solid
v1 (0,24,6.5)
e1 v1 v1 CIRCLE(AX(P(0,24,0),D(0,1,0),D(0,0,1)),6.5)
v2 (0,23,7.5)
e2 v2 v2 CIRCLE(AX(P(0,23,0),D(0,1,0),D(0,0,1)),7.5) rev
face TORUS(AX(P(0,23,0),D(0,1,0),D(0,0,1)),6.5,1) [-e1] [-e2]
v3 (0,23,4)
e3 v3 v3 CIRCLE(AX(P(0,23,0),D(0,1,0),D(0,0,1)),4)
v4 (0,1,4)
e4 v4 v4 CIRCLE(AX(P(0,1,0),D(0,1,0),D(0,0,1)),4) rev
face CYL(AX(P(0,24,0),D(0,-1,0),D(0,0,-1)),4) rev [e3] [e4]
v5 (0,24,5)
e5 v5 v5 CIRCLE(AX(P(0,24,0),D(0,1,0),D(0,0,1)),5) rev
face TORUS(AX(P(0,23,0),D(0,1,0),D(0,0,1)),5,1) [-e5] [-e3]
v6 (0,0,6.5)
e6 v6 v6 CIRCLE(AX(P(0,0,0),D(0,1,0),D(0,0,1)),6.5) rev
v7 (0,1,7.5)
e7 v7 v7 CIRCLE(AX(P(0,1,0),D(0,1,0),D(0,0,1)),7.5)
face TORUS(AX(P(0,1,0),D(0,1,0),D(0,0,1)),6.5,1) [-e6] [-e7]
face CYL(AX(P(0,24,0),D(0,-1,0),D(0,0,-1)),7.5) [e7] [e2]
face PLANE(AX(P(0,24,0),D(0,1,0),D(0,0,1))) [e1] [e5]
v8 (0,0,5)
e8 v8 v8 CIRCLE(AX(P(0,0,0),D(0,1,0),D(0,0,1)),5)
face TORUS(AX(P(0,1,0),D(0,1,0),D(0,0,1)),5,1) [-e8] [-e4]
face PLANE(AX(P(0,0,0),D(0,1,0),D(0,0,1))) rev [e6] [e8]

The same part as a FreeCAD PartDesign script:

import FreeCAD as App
import Part
import Sketcher
Q = App.Units.Quantity


def edges_at(feature, points):
    """Names of the edges that pass closest to the given points."""
    edges = feature.Shape.Edges
    near = lambda p: min(range(len(edges)), key=lambda i: edges[i].distToShape(Part.Vertex(*p))[0])
    return sorted({f"Edge{near(p) + 1}" for p in points})

doc = App.newDocument("Part")
body = doc.addObject("PartDesign::Body", "Body")

sketch1 = body.newObject("Sketcher::SketchObject", "Sketch")
sketch1.AttachmentSupport = (doc.getObject("XZ_Plane"), [""])
sketch1.MapMode = "FlatFace"
sketch1.addGeometry(Part.Circle(App.Vector(0, 0, 0), App.Vector(0, 0, 1), 7.5), False)
sketch1.addGeometry(Part.Circle(App.Vector(0, 0, 0), App.Vector(0, 0, 1), 4), False)
sketch1.addConstraint(Sketcher.Constraint("Coincident", 0, 3, -1, 1))
sketch1.addConstraint(Sketcher.Constraint("Coincident", 1, 3, -1, 1))
sketch1.addConstraint(Sketcher.Constraint("Diameter", 0, Q("15 mm")))
sketch1.addConstraint(Sketcher.Constraint("Diameter", 1, Q("8 mm")))
pad1 = body.newObject("PartDesign::Pad", "Pad")
pad1.Profile = sketch1
pad1.Length = 24
pad1.Reversed = True
doc.recompute()

fillet = body.newObject("PartDesign::Fillet", "Fillet")
fillet.Base = (pad1, edges_at(pad1, [
    (0, 0, -7.5),
    (0, 24, -7.5),
    (0, 0, -4),
    (0, 24, -4),
]))
fillet.Radius = 1

doc.recompute()
